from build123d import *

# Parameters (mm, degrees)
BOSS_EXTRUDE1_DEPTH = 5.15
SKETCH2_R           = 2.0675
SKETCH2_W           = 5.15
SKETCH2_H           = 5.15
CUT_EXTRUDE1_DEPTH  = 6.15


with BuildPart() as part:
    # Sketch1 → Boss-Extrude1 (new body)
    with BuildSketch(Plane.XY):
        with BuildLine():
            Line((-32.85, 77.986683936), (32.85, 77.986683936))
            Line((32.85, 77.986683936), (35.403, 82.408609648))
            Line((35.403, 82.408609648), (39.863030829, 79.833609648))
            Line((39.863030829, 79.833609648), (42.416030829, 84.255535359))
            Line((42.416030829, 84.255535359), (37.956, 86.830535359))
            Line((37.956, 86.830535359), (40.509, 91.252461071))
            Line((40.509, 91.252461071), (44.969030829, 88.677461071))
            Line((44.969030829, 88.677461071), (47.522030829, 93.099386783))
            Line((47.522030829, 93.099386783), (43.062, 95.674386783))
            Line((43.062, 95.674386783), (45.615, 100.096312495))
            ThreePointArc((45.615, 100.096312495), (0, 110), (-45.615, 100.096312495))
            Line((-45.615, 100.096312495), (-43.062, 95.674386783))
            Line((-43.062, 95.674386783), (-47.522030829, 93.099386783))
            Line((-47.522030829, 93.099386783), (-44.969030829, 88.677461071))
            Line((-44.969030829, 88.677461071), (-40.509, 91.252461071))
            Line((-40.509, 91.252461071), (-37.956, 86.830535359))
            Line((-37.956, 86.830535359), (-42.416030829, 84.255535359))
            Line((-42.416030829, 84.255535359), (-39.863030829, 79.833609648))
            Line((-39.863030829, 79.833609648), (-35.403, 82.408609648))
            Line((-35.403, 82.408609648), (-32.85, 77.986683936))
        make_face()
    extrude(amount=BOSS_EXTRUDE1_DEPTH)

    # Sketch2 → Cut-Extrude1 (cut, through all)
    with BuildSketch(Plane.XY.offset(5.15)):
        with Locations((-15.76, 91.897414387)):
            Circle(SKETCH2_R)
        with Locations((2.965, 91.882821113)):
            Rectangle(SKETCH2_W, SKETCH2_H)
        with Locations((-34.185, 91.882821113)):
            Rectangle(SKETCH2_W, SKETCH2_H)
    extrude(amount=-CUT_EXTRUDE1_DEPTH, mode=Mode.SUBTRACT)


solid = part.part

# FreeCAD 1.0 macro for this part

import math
import FreeCAD as App
import Part
import Sketcher
from FreeCAD import Vector
Q = App.Units.Quantity


def add_polygon(sketch, points):
    """Adds a closed chain of lines whose ends are joined by coincident constraints."""
    first, n = sketch.GeometryCount, len(points)
    for a, b in zip(points, points[1:] + points[:1]):
        sketch.addGeometry(Part.LineSegment(App.Vector(*a, 0), App.Vector(*b, 0)), False)
    for i in range(n):
        sketch.addConstraint(Sketcher.Constraint("Coincident", first + i, 2, first + (i + 1) % n, 1))

doc = App.newDocument("Part")
body = doc.addObject("PartDesign::Body", "Body")

# Sketch on XY plane
sketch1 = body.newObject("Sketcher::SketchObject", "Sketch")
sketch1.AttachmentSupport = (doc.getObject("XY_Plane"), [""])
sketch1.MapMode = "FlatFace"
sketch1.addGeometry(Part.LineSegment(Vector(-33, 78, 0), Vector(33, 78, 0)), False)
sketch1.addGeometry(Part.LineSegment(Vector(33, 78, 0), Vector(35, 82, 0)), False)
sketch1.addGeometry(Part.LineSegment(Vector(35, 82, 0), Vector(40, 80, 0)), False)
sketch1.addGeometry(Part.LineSegment(Vector(40, 80, 0), Vector(42, 84, 0)), False)
sketch1.addGeometry(Part.LineSegment(Vector(42, 84, 0), Vector(38, 87, 0)), False)
sketch1.addGeometry(Part.LineSegment(Vector(38, 87, 0), Vector(41, 91, 0)), False)
sketch1.addGeometry(Part.LineSegment(Vector(41, 91, 0), Vector(45, 89, 0)), False)
sketch1.addGeometry(Part.LineSegment(Vector(45, 89, 0), Vector(48, 93, 0)), False)
sketch1.addGeometry(Part.LineSegment(Vector(48, 93, 0), Vector(43, 96, 0)), False)
sketch1.addGeometry(Part.LineSegment(Vector(43, 96, 0), Vector(46, 100, 0)), False)
sketch1.addGeometry(Part.ArcOfCircle(Part.Circle(Vector(0, 0, 0), Vector(0, 0, 1), 110), math.radians(66), math.radians(114)), False)
sketch1.addGeometry(Part.LineSegment(Vector(-46, 100, 0), Vector(-43, 96, 0)), False)
sketch1.addGeometry(Part.LineSegment(Vector(-43, 96, 0), Vector(-48, 93, 0)), False)
sketch1.addGeometry(Part.LineSegment(Vector(-48, 93, 0), Vector(-45, 89, 0)), False)
sketch1.addGeometry(Part.LineSegment(Vector(-45, 89, 0), Vector(-41, 91, 0)), False)
sketch1.addGeometry(Part.LineSegment(Vector(-41, 91, 0), Vector(-38, 87, 0)), False)
sketch1.addGeometry(Part.LineSegment(Vector(-38, 87, 0), Vector(-42, 84, 0)), False)
sketch1.addGeometry(Part.LineSegment(Vector(-42, 84, 0), Vector(-40, 80, 0)), False)
sketch1.addGeometry(Part.LineSegment(Vector(-40, 80, 0), Vector(-35, 82, 0)), False)
sketch1.addGeometry(Part.LineSegment(Vector(-35, 82, 0), Vector(-33, 78, 0)), False)
sketch1.addConstraint(Sketcher.Constraint("Coincident", 0, 2, 1, 1))
sketch1.addConstraint(Sketcher.Constraint("Coincident", 1, 2, 2, 1))
sketch1.addConstraint(Sketcher.Constraint("Coincident", 2, 2, 3, 1))
sketch1.addConstraint(Sketcher.Constraint("Coincident", 3, 2, 4, 1))
sketch1.addConstraint(Sketcher.Constraint("Coincident", 4, 2, 5, 1))
sketch1.addConstraint(Sketcher.Constraint("Coincident", 5, 2, 6, 1))
sketch1.addConstraint(Sketcher.Constraint("Coincident", 6, 2, 7, 1))
sketch1.addConstraint(Sketcher.Constraint("Coincident", 7, 2, 8, 1))
sketch1.addConstraint(Sketcher.Constraint("Coincident", 8, 2, 9, 1))
sketch1.addConstraint(Sketcher.Constraint("Coincident", 9, 2, 10, 1))
sketch1.addConstraint(Sketcher.Constraint("Coincident", 10, 2, 11, 1))
sketch1.addConstraint(Sketcher.Constraint("Coincident", 11, 2, 12, 1))
sketch1.addConstraint(Sketcher.Constraint("Coincident", 12, 2, 13, 1))
sketch1.addConstraint(Sketcher.Constraint("Coincident", 13, 2, 14, 1))
sketch1.addConstraint(Sketcher.Constraint("Coincident", 14, 2, 15, 1))
sketch1.addConstraint(Sketcher.Constraint("Coincident", 15, 2, 16, 1))
sketch1.addConstraint(Sketcher.Constraint("Coincident", 16, 2, 17, 1))
sketch1.addConstraint(Sketcher.Constraint("Coincident", 17, 2, 18, 1))
sketch1.addConstraint(Sketcher.Constraint("Coincident", 18, 2, 19, 1))
sketch1.addConstraint(Sketcher.Constraint("Coincident", 19, 2, 0, 1))
sketch1.addConstraint(Sketcher.Constraint("Horizontal", 0))
sketch1.addConstraint(Sketcher.Constraint("Coincident", 10, 3, -1, 1))
sketch1.addConstraint(Sketcher.Constraint("Symmetric", 8, 2, 11, 2, -2))
sketch1.addConstraint(Sketcher.Constraint("Symmetric", 7, 2, 12, 2, -2))
sketch1.addConstraint(Sketcher.Constraint("Symmetric", 6, 2, 13, 2, -2))
sketch1.addConstraint(Sketcher.Constraint("Symmetric", 5, 2, 14, 2, -2))
sketch1.addConstraint(Sketcher.Constraint("Symmetric", 4, 2, 15, 2, -2))
sketch1.addConstraint(Sketcher.Constraint("Symmetric", 3, 2, 16, 2, -2))
sketch1.addConstraint(Sketcher.Constraint("Symmetric", 2, 2, 17, 2, -2))
sketch1.addConstraint(Sketcher.Constraint("Symmetric", 1, 2, 18, 2, -2))
sketch1.addConstraint(Sketcher.Constraint("Perpendicular", 1, 2))
sketch1.addConstraint(Sketcher.Constraint("Perpendicular", 2, 3))
sketch1.addConstraint(Sketcher.Constraint("Perpendicular", 3, 4))
sketch1.addConstraint(Sketcher.Constraint("Perpendicular", 4, 5))
sketch1.addConstraint(Sketcher.Constraint("Perpendicular", 5, 6))
sketch1.addConstraint(Sketcher.Constraint("Perpendicular", 6, 7))
sketch1.addConstraint(Sketcher.Constraint("Perpendicular", 7, 8))
sketch1.addConstraint(Sketcher.Constraint("Perpendicular", 8, 9))
sketch1.addConstraint(Sketcher.Constraint("Perpendicular", 11, 12))
sketch1.addConstraint(Sketcher.Constraint("Perpendicular", 18, 19))
sketch1.addConstraint(Sketcher.Constraint("Equal", 1, 3))
sketch1.addConstraint(Sketcher.Constraint("Equal", 2, 4))
sketch1.addConstraint(Sketcher.Constraint("Equal", 3, 5))
sketch1.addConstraint(Sketcher.Constraint("Equal", 4, 6))
sketch1.addConstraint(Sketcher.Constraint("Equal", 5, 7))
sketch1.addConstraint(Sketcher.Constraint("Equal", 6, 8))
sketch1.addConstraint(Sketcher.Constraint("Equal", 7, 9))
sketch1.addConstraint(Sketcher.Constraint("Radius", 10, 110.0))
sketch1.addConstraint(Sketcher.Constraint("Angle", 1, Q("60 deg")))
sketch1.addConstraint(Sketcher.Constraint("DistanceX", 0, 1, 0, 2, 65.7))
sketch1.addConstraint(Sketcher.Constraint("Distance", 2, 5.15))
sketch1.addConstraint(Sketcher.Constraint("Distance", 1, 5.106))
pad1 = body.newObject("PartDesign::Pad", "Pad")
pad1.Profile = sketch1
pad1.Length = 5.15

# Sketch on XY plane
sketch2 = body.newObject("Sketcher::SketchObject", "Sketch001")
sketch2.AttachmentSupport = (doc.getObject("XY_Plane"), [""])
sketch2.MapMode = "FlatFace"
sketch2.AttachmentOffset = App.Placement(Vector(0, 0, 5.15), App.Rotation())
sketch2.addGeometry(Part.Circle(Vector(-15.8, 91.9, 0), Vector(0, 0, 1), 2.1), False)  # 0
add_polygon(sketch2, [(0.4, 94.5), (0.4, 89.3), (5.5, 89.3), (5.5, 94.5)])  # lines 1-4
add_polygon(sketch2, [(-36.8, 94.5), (-36.8, 89.3), (-31.6, 89.3), (-31.6, 94.5)])  # lines 5-8
sketch2.addConstraint(Sketcher.Constraint("Vertical", 1))
sketch2.addConstraint(Sketcher.Constraint("Horizontal", 2))
sketch2.addConstraint(Sketcher.Constraint("Vertical", 3))
sketch2.addConstraint(Sketcher.Constraint("Horizontal", 4))
sketch2.addConstraint(Sketcher.Constraint("Vertical", 5))
sketch2.addConstraint(Sketcher.Constraint("Horizontal", 6))
sketch2.addConstraint(Sketcher.Constraint("Vertical", 7))
sketch2.addConstraint(Sketcher.Constraint("Horizontal", 8))
sketch2.addConstraint(Sketcher.Constraint("Horizontal", 2, 2, 5, 2))
sketch2.addConstraint(Sketcher.Constraint("Horizontal", 4, 2, 7, 2))
sketch2.addConstraint(Sketcher.Constraint("Equal", 4, 6))
sketch2.addConstraint(Sketcher.Constraint("Equal", 8, 1))
sketch2.addConstraint(Sketcher.Constraint("Diameter", 0, 4.135))
sketch2.addConstraint(Sketcher.Constraint("DistanceX", 5, 2, 0, 3, 21.0))
sketch2.addConstraint(Sketcher.Constraint("DistanceX", 6, 2, 1, 2, 32.0))
sketch2.addConstraint(Sketcher.Constraint("DistanceX", 2, 1, 2, 2, 5.15))
sketch2.addConstraint(Sketcher.Constraint("DistanceX", 0, 3, -1, 1, 15.76))
sketch2.addConstraint(Sketcher.Constraint("DistanceY", -1, 1, 1, 2, 89.307821))
sketch2.addConstraint(Sketcher.Constraint("DistanceY", -1, 1, 0, 3, 91.897414))
pocket1 = body.newObject("PartDesign::Pocket", "Pocket")
pocket1.Profile = sketch2
pocket1.Type = "ThroughAll"

doc.recompute()
